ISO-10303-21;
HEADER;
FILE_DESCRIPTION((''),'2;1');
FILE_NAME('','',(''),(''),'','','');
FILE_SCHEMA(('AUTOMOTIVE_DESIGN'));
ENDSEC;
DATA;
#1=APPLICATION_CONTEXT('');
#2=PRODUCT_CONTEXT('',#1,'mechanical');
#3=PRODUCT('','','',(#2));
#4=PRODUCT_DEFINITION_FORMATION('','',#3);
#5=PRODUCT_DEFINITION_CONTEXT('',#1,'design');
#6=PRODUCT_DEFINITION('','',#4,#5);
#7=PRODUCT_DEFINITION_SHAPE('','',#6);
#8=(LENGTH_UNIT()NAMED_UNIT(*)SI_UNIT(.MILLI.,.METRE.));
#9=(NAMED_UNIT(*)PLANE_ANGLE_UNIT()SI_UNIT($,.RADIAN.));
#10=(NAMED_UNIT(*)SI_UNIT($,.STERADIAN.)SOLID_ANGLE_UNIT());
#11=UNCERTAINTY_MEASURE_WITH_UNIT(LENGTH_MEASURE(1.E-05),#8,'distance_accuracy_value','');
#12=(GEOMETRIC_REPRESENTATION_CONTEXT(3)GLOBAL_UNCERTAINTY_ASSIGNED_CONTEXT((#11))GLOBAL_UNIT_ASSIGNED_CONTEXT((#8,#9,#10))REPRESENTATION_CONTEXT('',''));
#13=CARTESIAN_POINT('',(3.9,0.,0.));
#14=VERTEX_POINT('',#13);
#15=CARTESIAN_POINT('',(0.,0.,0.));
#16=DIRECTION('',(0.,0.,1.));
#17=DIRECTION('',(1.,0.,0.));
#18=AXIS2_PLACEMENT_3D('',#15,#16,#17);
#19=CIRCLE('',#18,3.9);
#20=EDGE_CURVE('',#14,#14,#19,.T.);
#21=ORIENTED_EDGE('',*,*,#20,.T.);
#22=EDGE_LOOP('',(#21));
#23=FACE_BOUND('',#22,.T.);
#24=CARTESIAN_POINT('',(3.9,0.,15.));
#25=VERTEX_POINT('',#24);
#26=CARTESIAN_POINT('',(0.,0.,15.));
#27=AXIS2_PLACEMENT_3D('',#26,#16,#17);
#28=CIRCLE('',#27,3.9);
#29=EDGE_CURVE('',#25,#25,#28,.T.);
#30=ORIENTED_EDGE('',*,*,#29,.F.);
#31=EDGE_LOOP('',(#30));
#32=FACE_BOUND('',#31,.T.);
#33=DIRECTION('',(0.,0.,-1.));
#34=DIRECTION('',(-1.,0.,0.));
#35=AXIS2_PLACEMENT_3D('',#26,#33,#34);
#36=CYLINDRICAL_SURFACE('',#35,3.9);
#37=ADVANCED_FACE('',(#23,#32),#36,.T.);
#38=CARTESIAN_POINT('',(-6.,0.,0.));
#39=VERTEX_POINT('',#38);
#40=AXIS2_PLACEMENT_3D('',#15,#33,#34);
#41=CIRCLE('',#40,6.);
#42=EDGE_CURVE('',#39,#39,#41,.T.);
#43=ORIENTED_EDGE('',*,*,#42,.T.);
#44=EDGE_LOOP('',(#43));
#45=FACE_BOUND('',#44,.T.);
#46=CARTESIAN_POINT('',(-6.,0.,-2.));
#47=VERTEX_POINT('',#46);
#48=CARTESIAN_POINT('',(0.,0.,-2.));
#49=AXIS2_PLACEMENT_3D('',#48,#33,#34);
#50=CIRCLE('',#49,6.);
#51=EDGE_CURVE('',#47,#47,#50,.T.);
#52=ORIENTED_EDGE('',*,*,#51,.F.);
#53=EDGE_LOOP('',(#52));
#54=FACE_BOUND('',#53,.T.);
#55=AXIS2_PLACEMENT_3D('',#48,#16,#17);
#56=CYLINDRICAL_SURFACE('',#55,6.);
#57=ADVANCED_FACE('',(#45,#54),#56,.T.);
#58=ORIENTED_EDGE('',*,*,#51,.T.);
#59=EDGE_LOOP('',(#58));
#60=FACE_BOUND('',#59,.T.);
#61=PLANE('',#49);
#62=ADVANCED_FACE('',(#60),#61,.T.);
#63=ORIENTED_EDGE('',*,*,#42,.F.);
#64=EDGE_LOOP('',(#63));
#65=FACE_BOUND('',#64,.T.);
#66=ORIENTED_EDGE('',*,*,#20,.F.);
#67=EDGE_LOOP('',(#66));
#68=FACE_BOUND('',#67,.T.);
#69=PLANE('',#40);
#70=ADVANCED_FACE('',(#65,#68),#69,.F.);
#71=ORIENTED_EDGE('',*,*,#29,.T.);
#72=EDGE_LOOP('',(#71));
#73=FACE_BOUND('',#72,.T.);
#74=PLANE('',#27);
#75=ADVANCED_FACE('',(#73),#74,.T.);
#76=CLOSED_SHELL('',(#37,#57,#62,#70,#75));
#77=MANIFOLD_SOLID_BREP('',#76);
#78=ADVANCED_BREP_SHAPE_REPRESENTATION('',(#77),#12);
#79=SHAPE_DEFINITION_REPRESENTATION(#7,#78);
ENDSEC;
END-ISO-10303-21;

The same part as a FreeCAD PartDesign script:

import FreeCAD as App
import Part
import Sketcher

doc = App.newDocument("Part")
body = doc.addObject("PartDesign::Body", "Body")

# Sketch on XY plane
sketch1 = body.newObject("Sketcher::SketchObject", "Sketch")
sketch1.AttachmentSupport = (doc.getObject("XY_Plane"), [""])
sketch1.MapMode = "FlatFace"
sketch1.addGeometry(Part.Circle(App.Vector(0, 0, 0), App.Vector(0, 0, 1), 3.9), False)
sketch1.addConstraint([
    Sketcher.Constraint("Coincident", 0, 3, -1, 1),
    Sketcher.Constraint("Diameter", 0, 7.8),
])
pad1 = body.newObject("PartDesign::Pad", "Pad")
pad1.Profile = sketch1
pad1.Length = 15

# Sketch on XY plane
sketch2 = body.newObject("Sketcher::SketchObject", "Sketch001")
sketch2.AttachmentSupport = (doc.getObject("XY_Plane"), [""])
sketch2.MapMode = "FlatFace"
sketch2.addGeometry(Part.Circle(App.Vector(0, 0, 0), App.Vector(0, 0, 1), 6), False)
sketch2.addConstraint([
    Sketcher.Constraint("Coincident", 0, 3, -1, 1),
    Sketcher.Constraint("Diameter", 0, 12.0),
])
pad2 = body.newObject("PartDesign::Pad", "Pad001")
pad2.Profile = sketch2
pad2.Length = 2
pad2.Reversed = True

doc.recompute()
